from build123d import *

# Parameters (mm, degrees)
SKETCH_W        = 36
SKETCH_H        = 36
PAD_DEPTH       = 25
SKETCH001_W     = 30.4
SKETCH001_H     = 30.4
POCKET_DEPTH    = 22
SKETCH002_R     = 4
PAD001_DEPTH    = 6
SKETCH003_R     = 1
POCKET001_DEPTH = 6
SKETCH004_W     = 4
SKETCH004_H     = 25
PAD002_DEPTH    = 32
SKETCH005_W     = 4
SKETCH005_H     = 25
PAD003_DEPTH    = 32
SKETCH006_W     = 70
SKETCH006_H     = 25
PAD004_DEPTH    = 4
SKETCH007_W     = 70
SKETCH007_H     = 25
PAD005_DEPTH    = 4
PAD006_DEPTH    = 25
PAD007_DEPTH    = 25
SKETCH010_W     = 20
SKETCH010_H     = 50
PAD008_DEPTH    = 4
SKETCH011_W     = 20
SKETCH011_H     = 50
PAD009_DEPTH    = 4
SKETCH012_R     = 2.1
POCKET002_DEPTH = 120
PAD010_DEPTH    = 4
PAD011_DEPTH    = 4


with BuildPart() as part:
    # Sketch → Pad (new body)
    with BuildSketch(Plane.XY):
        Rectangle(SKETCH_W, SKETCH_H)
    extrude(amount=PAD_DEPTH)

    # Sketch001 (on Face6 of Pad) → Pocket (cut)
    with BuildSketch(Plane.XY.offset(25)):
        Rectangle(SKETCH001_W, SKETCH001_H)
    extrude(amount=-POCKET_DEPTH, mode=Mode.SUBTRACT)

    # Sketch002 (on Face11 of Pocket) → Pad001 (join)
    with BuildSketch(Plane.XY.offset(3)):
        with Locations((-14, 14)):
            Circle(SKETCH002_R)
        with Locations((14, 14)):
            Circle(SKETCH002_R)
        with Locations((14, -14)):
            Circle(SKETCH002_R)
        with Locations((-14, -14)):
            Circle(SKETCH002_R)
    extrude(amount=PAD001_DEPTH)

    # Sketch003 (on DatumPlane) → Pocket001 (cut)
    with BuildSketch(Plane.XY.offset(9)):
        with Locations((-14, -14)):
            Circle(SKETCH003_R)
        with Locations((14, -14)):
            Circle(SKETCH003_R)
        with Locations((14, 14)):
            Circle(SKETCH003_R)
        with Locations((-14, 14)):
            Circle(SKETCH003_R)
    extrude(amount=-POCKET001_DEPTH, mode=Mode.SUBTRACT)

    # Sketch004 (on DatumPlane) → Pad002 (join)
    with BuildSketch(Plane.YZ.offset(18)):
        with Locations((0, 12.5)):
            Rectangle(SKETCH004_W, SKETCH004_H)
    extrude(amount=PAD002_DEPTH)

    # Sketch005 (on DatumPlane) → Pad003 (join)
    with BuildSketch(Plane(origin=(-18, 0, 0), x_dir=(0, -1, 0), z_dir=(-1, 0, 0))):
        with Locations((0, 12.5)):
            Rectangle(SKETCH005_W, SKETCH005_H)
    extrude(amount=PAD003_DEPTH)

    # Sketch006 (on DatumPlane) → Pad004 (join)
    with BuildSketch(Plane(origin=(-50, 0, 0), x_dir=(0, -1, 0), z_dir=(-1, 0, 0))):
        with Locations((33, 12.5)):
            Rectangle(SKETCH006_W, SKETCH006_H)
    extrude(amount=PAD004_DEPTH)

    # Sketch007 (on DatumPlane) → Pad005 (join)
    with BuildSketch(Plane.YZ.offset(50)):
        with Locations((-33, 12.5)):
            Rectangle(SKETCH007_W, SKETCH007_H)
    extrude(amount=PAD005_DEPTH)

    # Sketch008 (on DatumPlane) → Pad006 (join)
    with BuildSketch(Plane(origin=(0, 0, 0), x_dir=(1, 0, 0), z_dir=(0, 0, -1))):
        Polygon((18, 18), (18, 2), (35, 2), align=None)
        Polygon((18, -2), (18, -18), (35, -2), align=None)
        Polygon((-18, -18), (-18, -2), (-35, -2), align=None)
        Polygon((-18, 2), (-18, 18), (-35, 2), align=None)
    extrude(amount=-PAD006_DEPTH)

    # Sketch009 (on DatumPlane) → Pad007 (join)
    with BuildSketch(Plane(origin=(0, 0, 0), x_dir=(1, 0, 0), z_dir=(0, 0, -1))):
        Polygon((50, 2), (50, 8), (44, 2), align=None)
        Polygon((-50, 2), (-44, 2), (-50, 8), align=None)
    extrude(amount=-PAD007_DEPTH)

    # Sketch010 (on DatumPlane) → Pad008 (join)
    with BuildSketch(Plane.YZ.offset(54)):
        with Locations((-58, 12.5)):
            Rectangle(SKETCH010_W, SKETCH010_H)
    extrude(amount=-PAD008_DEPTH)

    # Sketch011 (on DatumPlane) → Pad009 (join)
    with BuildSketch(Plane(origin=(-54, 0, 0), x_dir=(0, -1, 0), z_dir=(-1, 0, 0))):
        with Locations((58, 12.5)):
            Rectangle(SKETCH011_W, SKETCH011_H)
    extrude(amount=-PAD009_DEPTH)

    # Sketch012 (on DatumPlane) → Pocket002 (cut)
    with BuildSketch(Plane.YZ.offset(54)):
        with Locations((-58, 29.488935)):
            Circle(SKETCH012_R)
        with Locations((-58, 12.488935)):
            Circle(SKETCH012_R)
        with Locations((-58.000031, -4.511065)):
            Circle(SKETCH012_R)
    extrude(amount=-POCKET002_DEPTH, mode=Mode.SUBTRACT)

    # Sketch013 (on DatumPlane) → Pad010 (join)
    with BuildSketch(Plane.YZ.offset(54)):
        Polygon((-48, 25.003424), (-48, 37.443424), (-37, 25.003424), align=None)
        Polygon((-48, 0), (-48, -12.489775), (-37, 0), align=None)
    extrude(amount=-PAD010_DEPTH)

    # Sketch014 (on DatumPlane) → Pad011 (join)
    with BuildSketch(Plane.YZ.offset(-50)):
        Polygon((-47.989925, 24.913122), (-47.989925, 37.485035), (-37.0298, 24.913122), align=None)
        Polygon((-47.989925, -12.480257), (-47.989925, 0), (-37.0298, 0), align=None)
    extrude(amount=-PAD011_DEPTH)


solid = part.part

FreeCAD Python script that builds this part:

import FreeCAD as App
import Part
import Sketcher
from FreeCAD import Vector
Q = App.Units.Quantity


def add_polygon(sketch, points):
    """Adds a closed chain of lines whose ends are joined by coincident constraints."""
    first, n = sketch.GeometryCount, len(points)
    for a, b in zip(points, points[1:] + points[:1]):
        sketch.addGeometry(Part.LineSegment(App.Vector(*a, 0), App.Vector(*b, 0)), False)
    for i in range(n):
        sketch.addConstraint(Sketcher.Constraint("Coincident", first + i, 2, first + (i + 1) % n, 1))

doc = App.newDocument("Part")
body = doc.addObject("PartDesign::Body", "Body")

# Sketch on XY plane
sketch1 = body.newObject("Sketcher::SketchObject", "Sketch")
sketch1.AttachmentSupport = (doc.getObject("XY_Plane"), [""])
sketch1.MapMode = "FlatFace"
add_polygon(sketch1, [(-18, 18), (-18, -18), (18, -18), (18, 18)])  # lines 0-3
sketch1.addConstraint(Sketcher.Constraint("Vertical", 0))
sketch1.addConstraint(Sketcher.Constraint("Horizontal", 1))
sketch1.addConstraint(Sketcher.Constraint("Vertical", 2))
sketch1.addConstraint(Sketcher.Constraint("Horizontal", 3))
sketch1.addConstraint(Sketcher.Constraint("Symmetric", 0, 2, 2, 2, -1, 1))
sketch1.addConstraint(Sketcher.Constraint("Equal", 3, 0))
sketch1.addConstraint(Sketcher.Constraint("DistanceX", 1, 1, 1, 2, Q("36 mm")))
pad1 = body.newObject("PartDesign::Pad", "Pad")
pad1.Profile = sketch1
pad1.Length = 25

# Sketch on XY plane
sketch2 = body.newObject("Sketcher::SketchObject", "Sketch001")
sketch2.AttachmentSupport = (doc.getObject("XY_Plane"), [""])
sketch2.MapMode = "FlatFace"
sketch2.AttachmentOffset = App.Placement(Vector(0, 0, 25), App.Rotation())
add_polygon(sketch2, [(-15.2, 15.2), (-15.2, -15.2), (15.2, -15.2), (15.2, 15.2)])  # lines 0-3
sketch2.addConstraint(Sketcher.Constraint("Vertical", 0))
sketch2.addConstraint(Sketcher.Constraint("Horizontal", 1))
sketch2.addConstraint(Sketcher.Constraint("Vertical", 2))
sketch2.addConstraint(Sketcher.Constraint("Horizontal", 3))
sketch2.addConstraint(Sketcher.Constraint("Symmetric", 0, 2, 2, 2, -1, 1))
sketch2.addConstraint(Sketcher.Constraint("Equal", 3, 0))
sketch2.addConstraint(Sketcher.Constraint("DistanceX", 1, 1, 1, 2, Q("30.4 mm")))
pocket1 = body.newObject("PartDesign::Pocket", "Pocket")
pocket1.Profile = sketch2
pocket1.Length = 22

# Sketch on XY plane
sketch3 = body.newObject("Sketcher::SketchObject", "Sketch002")
sketch3.AttachmentSupport = (doc.getObject("XY_Plane"), [""])
sketch3.MapMode = "FlatFace"
sketch3.AttachmentOffset = App.Placement(Vector(0, 0, 3), App.Rotation())
sketch3.addGeometry(Part.Circle(Vector(-14, 14, 0), Vector(0, 0, 1), 4), False)
sketch3.addGeometry(Part.Circle(Vector(14, 14, 0), Vector(0, 0, 1), 4), False)
sketch3.addGeometry(Part.Circle(Vector(14, -14, 0), Vector(0, 0, 1), 4), False)
sketch3.addGeometry(Part.Circle(Vector(-14, -14, 0), Vector(0, 0, 1), 4), False)
sketch3.addConstraint(Sketcher.Constraint("Equal", 0, 1))
sketch3.addConstraint(Sketcher.Constraint("Equal", 1, 2))
sketch3.addConstraint(Sketcher.Constraint("Equal", 2, 3))
sketch3.addConstraint(Sketcher.Constraint("Symmetric", 0, 3, 2, 3, -1, 1))
sketch3.addConstraint(Sketcher.Constraint("Symmetric", 1, 3, 3, 3, -1, 1))
sketch3.addConstraint(Sketcher.Constraint("Symmetric", 0, 3, 1, 3, -2))
sketch3.addConstraint(Sketcher.Constraint("Diameter", 0, Q("8 mm")))
sketch3.addConstraint(Sketcher.Constraint("DistanceX", 0, 3, -1, 1, Q("14 mm")))
sketch3.addConstraint(Sketcher.Constraint("DistanceY", -1, 1, 0, 3, Q("14 mm")))
pad2 = body.newObject("PartDesign::Pad", "Pad001")
pad2.Profile = sketch3
pad2.Length = 6

# Sketch on XY plane
sketch4 = body.newObject("Sketcher::SketchObject", "Sketch003")
sketch4.AttachmentSupport = (doc.getObject("XY_Plane"), [""])
sketch4.MapMode = "FlatFace"
sketch4.AttachmentOffset = App.Placement(Vector(0, 0, 9), App.Rotation())
sketch4.addGeometry(Part.Circle(Vector(-14, -14, 0), Vector(0, 0, 1), 1), False)
sketch4.addGeometry(Part.Circle(Vector(14, -14, 0), Vector(0, 0, 1), 1), False)
sketch4.addGeometry(Part.Circle(Vector(14, 14, 0), Vector(0, 0, 1), 1), False)
sketch4.addGeometry(Part.Circle(Vector(-14, 14, 0), Vector(0, 0, 1), 1), False)
sketch4.addConstraint(Sketcher.Constraint("Equal", 0, 1))
sketch4.addConstraint(Sketcher.Constraint("Equal", 1, 2))
sketch4.addConstraint(Sketcher.Constraint("Equal", 2, 3))
sketch4.addConstraint(Sketcher.Constraint("Symmetric", 0, 3, 2, 3, -1, 1))
sketch4.addConstraint(Sketcher.Constraint("Symmetric", 1, 3, 3, 3, -1, 1))
sketch4.addConstraint(Sketcher.Constraint("Symmetric", 0, 3, 1, 3, -2))
sketch4.addConstraint(Sketcher.Constraint("Diameter", 0, Q("2 mm")))
sketch4.addConstraint(Sketcher.Constraint("DistanceX", 0, 3, -1, 1, Q("14 mm")))
sketch4.addConstraint(Sketcher.Constraint("DistanceY", 0, 3, -1, 1, Q("14 mm")))
pocket2 = body.newObject("PartDesign::Pocket", "Pocket001")
pocket2.Profile = sketch4
pocket2.Length = 6

# Sketch on YZ plane
sketch5 = body.newObject("Sketcher::SketchObject", "Sketch004")
sketch5.AttachmentSupport = (doc.getObject("YZ_Plane"), [""])
sketch5.MapMode = "FlatFace"
sketch5.AttachmentOffset = App.Placement(Vector(0, 0, 18), App.Rotation())
add_polygon(sketch5, [(-2, 25), (-2, 0), (2, 0), (2, 25)])  # lines 0-3
sketch5.addConstraint(Sketcher.Constraint("Vertical", 0))
sketch5.addConstraint(Sketcher.Constraint("Horizontal", 1))
sketch5.addConstraint(Sketcher.Constraint("Vertical", 2))
sketch5.addConstraint(Sketcher.Constraint("Horizontal", 3))
sketch5.addConstraint(Sketcher.Constraint("Symmetric", 0, 2, 1, 2, -1, 1))
sketch5.addConstraint(Sketcher.Constraint("DistanceX", 1, 1, 1, 2, Q("4 mm")))
sketch5.addConstraint(Sketcher.Constraint("DistanceY", 0, 2, 0, 1, Q("25 mm")))
pad3 = body.newObject("PartDesign::Pad", "Pad002")
pad3.Profile = sketch5
pad3.Length = 32

# Sketch on YZ plane
sketch6 = body.newObject("Sketcher::SketchObject", "Sketch005")
sketch6.AttachmentSupport = (doc.getObject("YZ_Plane"), [""])
sketch6.MapMode = "FlatFace"
sketch6.AttachmentOffset = App.Placement(Vector(0, 0, -18), App.Rotation())
add_polygon(sketch6, [(2, 25), (2, 0), (-2, 0), (-2, 25)])  # lines 0-3
sketch6.addConstraint(Sketcher.Constraint("Vertical", 0))
sketch6.addConstraint(Sketcher.Constraint("Horizontal", 1))
sketch6.addConstraint(Sketcher.Constraint("Vertical", 2))
sketch6.addConstraint(Sketcher.Constraint("Horizontal", 3))
sketch6.addConstraint(Sketcher.Constraint("Symmetric", 0, 2, 1, 2, -1, 1))
sketch6.addConstraint(Sketcher.Constraint("DistanceX", 1, 2, 1, 1, Q("4 mm")))
sketch6.addConstraint(Sketcher.Constraint("DistanceY", 0, 2, 0, 1, Q("25 mm")))
pad4 = body.newObject("PartDesign::Pad", "Pad003")
pad4.Profile = sketch6
pad4.Length = 32
pad4.Reversed = True

# Sketch on YZ plane
sketch7 = body.newObject("Sketcher::SketchObject", "Sketch006")
sketch7.AttachmentSupport = (doc.getObject("YZ_Plane"), [""])
sketch7.MapMode = "FlatFace"
sketch7.AttachmentOffset = App.Placement(Vector(0, 0, -50), App.Rotation())
add_polygon(sketch7, [(2, 25), (2, 0), (-68, 0), (-68, 25)])  # lines 0-3
sketch7.addConstraint(Sketcher.Constraint("Vertical", 0))
sketch7.addConstraint(Sketcher.Constraint("Horizontal", 1))
sketch7.addConstraint(Sketcher.Constraint("Vertical", 2))
sketch7.addConstraint(Sketcher.Constraint("Horizontal", 3))
sketch7.addConstraint(Sketcher.Constraint("PointOnObject", 0, 2, -1))
sketch7.addConstraint(Sketcher.Constraint("DistanceX", 1, 2, 1, 1, Q("70 mm")))
sketch7.addConstraint(Sketcher.Constraint("DistanceY", 0, 2, 0, 1, Q("25 mm")))
sketch7.addConstraint(Sketcher.Constraint("DistanceX", -1, 1, 0, 2, Q("2 mm")))
pad5 = body.newObject("PartDesign::Pad", "Pad004")
pad5.Profile = sketch7
pad5.Length = 4
pad5.Reversed = True

# Sketch on YZ plane
sketch8 = body.newObject("Sketcher::SketchObject", "Sketch007")
sketch8.AttachmentSupport = (doc.getObject("YZ_Plane"), [""])
sketch8.MapMode = "FlatFace"
sketch8.AttachmentOffset = App.Placement(Vector(0, 0, 50), App.Rotation())
add_polygon(sketch8, [(-68, 25), (-68, 0), (2, 0), (2, 25)])  # lines 0-3
sketch8.addConstraint(Sketcher.Constraint("Vertical", 0))
sketch8.addConstraint(Sketcher.Constraint("Horizontal", 1))
sketch8.addConstraint(Sketcher.Constraint("Vertical", 2))
sketch8.addConstraint(Sketcher.Constraint("Horizontal", 3))
sketch8.addConstraint(Sketcher.Constraint("PointOnObject", 0, 2, -1))
sketch8.addConstraint(Sketcher.Constraint("DistanceX", 1, 1, 1, 2, Q("70 mm")))
sketch8.addConstraint(Sketcher.Constraint("DistanceY", 0, 2, 0, 1, Q("25 mm")))
sketch8.addConstraint(Sketcher.Constraint("DistanceX", 0, 2, -1, 1, Q("68 mm")))
pad6 = body.newObject("PartDesign::Pad", "Pad005")
pad6.Profile = sketch8
pad6.Length = 4

# Sketch on XY plane
sketch9 = body.newObject("Sketcher::SketchObject", "Sketch008")
sketch9.AttachmentSupport = (doc.getObject("XY_Plane"), [""])
sketch9.MapMode = "FlatFace"
add_polygon(sketch9, [(18, -18), (18, -2), (35, -2)])  # lines 0-2
add_polygon(sketch9, [(18, 2), (18, 18), (35, 2)])  # lines 3-5
add_polygon(sketch9, [(-18, 18), (-18, 2), (-35, 2)])  # lines 6-8
add_polygon(sketch9, [(-18, -2), (-18, -18), (-35, -2)])  # lines 9-11
sketch9.addConstraint(Sketcher.Constraint("Vertical", 0))
sketch9.addConstraint(Sketcher.Constraint("Horizontal", 1))
sketch9.addConstraint(Sketcher.Constraint("Vertical", 3))
sketch9.addConstraint(Sketcher.Constraint("Horizontal", 5))
sketch9.addConstraint(Sketcher.Constraint("Vertical", 6))
sketch9.addConstraint(Sketcher.Constraint("Horizontal", 7))
sketch9.addConstraint(Sketcher.Constraint("Vertical", 9))
sketch9.addConstraint(Sketcher.Constraint("Horizontal", 11))
sketch9.addConstraint(Sketcher.Constraint("Symmetric", 0, 2, 6, 2, -1, 1))
sketch9.addConstraint(Sketcher.Constraint("Symmetric", 3, 2, 9, 2, -1, 1))
sketch9.addConstraint(Sketcher.Constraint("Symmetric", 4, 2, 10, 2, -1, 1))
sketch9.addConstraint(Sketcher.Constraint("Symmetric", 5, 2, 6, 2, -2))
sketch9.addConstraint(Sketcher.Constraint("Parallel", 2, 8))
sketch9.addConstraint(Sketcher.Constraint("Horizontal", 3, 2, 8, 2))
sketch9.addConstraint(Sketcher.Constraint("Horizontal", 2, 2, 9, 2))
sketch9.addConstraint(Sketcher.Constraint("Vertical", 1, 2, 4, 2))
sketch9.addConstraint(Sketcher.Constraint("DistanceX", 1, 1, 1, 2, Q("17 mm")))
sketch9.addConstraint(Sketcher.Constraint("DistanceY", 0, 1, 0, 2, Q("16 mm")))
sketch9.addConstraint(Sketcher.Constraint("DistanceX", -1, 1, 0, 2, Q("18 mm")))
sketch9.addConstraint(Sketcher.Constraint("DistanceY", 0, 2, -1, 1, Q("2 mm")))
pad7 = body.newObject("PartDesign::Pad", "Pad006")
pad7.Profile = sketch9
pad7.Length = 25

# Sketch on XY plane
sketch10 = body.newObject("Sketcher::SketchObject", "Sketch009")
sketch10.AttachmentSupport = (doc.getObject("XY_Plane"), [""])
sketch10.MapMode = "FlatFace"
add_polygon(sketch10, [(50, -2), (50, -8), (44, -2)])  # lines 0-2
add_polygon(sketch10, [(-50, -2), (-44, -2), (-50, -8)])  # lines 3-5
sketch10.addConstraint(Sketcher.Constraint("Vertical", 0))
sketch10.addConstraint(Sketcher.Constraint("Horizontal", 2))
sketch10.addConstraint(Sketcher.Constraint("Horizontal", 3))
sketch10.addConstraint(Sketcher.Constraint("Vertical", 5))
sketch10.addConstraint(Sketcher.Constraint("Symmetric", 1, 2, 3, 2, -2))
sketch10.addConstraint(Sketcher.Constraint("Symmetric", 0, 2, 4, 2, -2))
sketch10.addConstraint(Sketcher.Constraint("Perpendicular", 1, 4))
sketch10.addConstraint(Sketcher.Constraint("DistanceX", 2, 1, 2, 2, Q("6 mm")))
sketch10.addConstraint(Sketcher.Constraint("DistanceX", -1, 1, 0, 2, Q("50 mm")))
sketch10.addConstraint(Sketcher.Constraint("DistanceY", 0, 2, -1, 1, Q("8 mm")))
pad8 = body.newObject("PartDesign::Pad", "Pad007")
pad8.Profile = sketch10
pad8.Length = 25

# Sketch on YZ plane
sketch11 = body.newObject("Sketcher::SketchObject", "Sketch010")
sketch11.AttachmentSupport = (doc.getObject("YZ_Plane"), [""])
sketch11.MapMode = "FlatFace"
sketch11.AttachmentOffset = App.Placement(Vector(0, 0, 54), App.Rotation())
add_polygon(sketch11, [(-68, 37.5), (-68, -12.5), (-48, -12.5), (-48, 37.5)])  # lines 0-3
sketch11.addConstraint(Sketcher.Constraint("Vertical", 0))
sketch11.addConstraint(Sketcher.Constraint("Horizontal", 1))
sketch11.addConstraint(Sketcher.Constraint("Vertical", 2))
sketch11.addConstraint(Sketcher.Constraint("Horizontal", 3))
sketch11.addConstraint(Sketcher.Constraint("DistanceX", 1, 1, 1, 2, Q("20 mm")))
sketch11.addConstraint(Sketcher.Constraint("DistanceY", 0, 2, 0, 1, Q("50 mm")))
sketch11.addConstraint(Sketcher.Constraint("DistanceX", 0, 2, -1, 1, Q("68 mm")))
sketch11.addConstraint(Sketcher.Constraint("DistanceY", 0, 2, -1, 1, Q("12.5 mm")))
pad9 = body.newObject("PartDesign::Pad", "Pad008")
pad9.Profile = sketch11
pad9.Length = 4
pad9.Reversed = True

# Sketch on YZ plane
sketch12 = body.newObject("Sketcher::SketchObject", "Sketch011")
sketch12.AttachmentSupport = (doc.getObject("YZ_Plane"), [""])
sketch12.MapMode = "FlatFace"
sketch12.AttachmentOffset = App.Placement(Vector(0, 0, -54), App.Rotation())
add_polygon(sketch12, [(-48, 37.5), (-48, -12.5), (-68, -12.5), (-68, 37.5)])  # lines 0-3
sketch12.addConstraint(Sketcher.Constraint("Vertical", 0))
sketch12.addConstraint(Sketcher.Constraint("Horizontal", 1))
sketch12.addConstraint(Sketcher.Constraint("Vertical", 2))
sketch12.addConstraint(Sketcher.Constraint("Horizontal", 3))
sketch12.addConstraint(Sketcher.Constraint("DistanceX", 1, 2, 1, 1, Q("20 mm")))
sketch12.addConstraint(Sketcher.Constraint("DistanceY", 0, 2, 0, 1, Q("50 mm")))
sketch12.addConstraint(Sketcher.Constraint("DistanceX", 0, 2, -1, 1, Q("48 mm")))
sketch12.addConstraint(Sketcher.Constraint("DistanceY", 0, 2, -1, 1, Q("12.5 mm")))
pad10 = body.newObject("PartDesign::Pad", "Pad009")
pad10.Profile = sketch12
pad10.Length = 4

# Sketch on YZ plane
sketch13 = body.newObject("Sketcher::SketchObject", "Sketch012")
sketch13.AttachmentSupport = (doc.getObject("YZ_Plane"), [""])
sketch13.MapMode = "FlatFace"
sketch13.AttachmentOffset = App.Placement(Vector(0, 0, 54), App.Rotation())
sketch13.addGeometry(Part.Circle(Vector(-58, 29.488935, 0), Vector(0, 0, 1), 2.1), False)
sketch13.addGeometry(Part.Circle(Vector(-58, 12.488935, 0), Vector(0, 0, 1), 2.1), False)
sketch13.addGeometry(Part.Circle(Vector(-58.000031, -4.511065, 0), Vector(0, 0, 1), 2.1), False)
sketch13.addConstraint(Sketcher.Constraint("Equal", 0, 1))
sketch13.addConstraint(Sketcher.Constraint("Equal", 1, 2))
sketch13.addConstraint(Sketcher.Constraint("Vertical", 0, 3, 1, 3))
sketch13.addConstraint(Sketcher.Constraint("Diameter", 0, Q("4.2 mm")))
sketch13.addConstraint(Sketcher.Constraint("DistanceX", 0, 3, -1, 1, Q("58 mm")))
sketch13.addConstraint(Sketcher.Constraint("DistanceY", 1, 3, 0, 3, Q("17 mm")))
sketch13.addConstraint(Sketcher.Constraint("DistanceY", 2, 3, 1, 3, Q("17 mm")))
sketch13.addConstraint(Sketcher.Constraint("DistanceX", 2, 3, -1, 1, Q("58.000031 mm")))
sketch13.addConstraint(Sketcher.Constraint("DistanceY", -1, 1, 0, 3, Q("29.488935 mm")))
pocket3 = body.newObject("PartDesign::Pocket", "Pocket002")
pocket3.Profile = sketch13
pocket3.Length = 120

# Sketch on YZ plane
sketch14 = body.newObject("Sketcher::SketchObject", "Sketch013")
sketch14.AttachmentSupport = (doc.getObject("YZ_Plane"), [""])
sketch14.MapMode = "FlatFace"
sketch14.AttachmentOffset = App.Placement(Vector(0, 0, 54), App.Rotation())
add_polygon(sketch14, [(-48, 37.443424), (-48, 25.003424), (-37, 25.003424)])  # lines 0-2
add_polygon(sketch14, [(-48, 0), (-48, -12.489775), (-37, 0)])  # lines 3-5
sketch14.addConstraint(Sketcher.Constraint("Vertical", 0))
sketch14.addConstraint(Sketcher.Constraint("Horizontal", 1))
sketch14.addConstraint(Sketcher.Constraint("Vertical", 3))
sketch14.addConstraint(Sketcher.Constraint("Horizontal", 5))
sketch14.addConstraint(Sketcher.Constraint("PointOnObject", 4, 2, -1))
sketch14.addConstraint(Sketcher.Constraint("Vertical", 2, 2, 3, 2))
sketch14.addConstraint(Sketcher.Constraint("Vertical", 1, 2, 4, 2))
sketch14.addConstraint(Sketcher.Constraint("DistanceX", 1, 1, 1, 2, Q("11 mm")))
sketch14.addConstraint(Sketcher.Constraint("DistanceX", 0, 2, -1, 1, Q("48 mm")))
sketch14.addConstraint(Sketcher.Constraint("DistanceY", 0, 2, 0, 1, Q("12.44 mm")))
sketch14.addConstraint(Sketcher.Constraint("DistanceY", 3, 2, 0, 2, Q("37.493199 mm")))
sketch14.addConstraint(Sketcher.Constraint("Distance", 4, Q("16.643151 mm")))
pad11 = body.newObject("PartDesign::Pad", "Pad010")
pad11.Profile = sketch14
pad11.Length = 4
pad11.Reversed = True

# Sketch on YZ plane
sketch15 = body.newObject("Sketcher::SketchObject", "Sketch014")
sketch15.AttachmentSupport = (doc.getObject("YZ_Plane"), [""])
sketch15.MapMode = "FlatFace"
sketch15.AttachmentOffset = App.Placement(Vector(0, 0, -50), App.Rotation())
add_polygon(sketch15, [(-47.989925, 37.485035), (-47.989925, 24.913122), (-37.0298, 24.913122)])  # lines 0-2
add_polygon(sketch15, [(-47.989925, 0), (-47.989925, -12.480257), (-37.0298, 0)])  # lines 3-5
sketch15.addConstraint(Sketcher.Constraint("Vertical", 0))
sketch15.addConstraint(Sketcher.Constraint("Horizontal", 1))
sketch15.addConstraint(Sketcher.Constraint("Vertical", 3))
sketch15.addConstraint(Sketcher.Constraint("Horizontal", 5))
sketch15.addConstraint(Sketcher.Constraint("PointOnObject", 4, 2, -1))
sketch15.addConstraint(Sketcher.Constraint("Vertical", 2, 2, 3, 2))
sketch15.addConstraint(Sketcher.Constraint("Vertical", 1, 2, 4, 2))
sketch15.addConstraint(Sketcher.Constraint("DistanceX", 1, 2, -1, 1, Q("37.0298 mm")))
sketch15.addConstraint(Sketcher.Constraint("Distance", 2, Q("16.678649 mm")))
sketch15.addConstraint(Sketcher.Constraint("Distance", 4, Q("16.609671 mm")))
sketch15.addConstraint(Sketcher.Constraint("DistanceX", 1, 1, 1, 2, Q("10.960125 mm")))
sketch15.addConstraint(Sketcher.Constraint("DistanceY", 3, 2, 0, 2, Q("37.393379 mm")))
pad12 = body.newObject("PartDesign::Pad", "Pad011")
pad12.Profile = sketch15
pad12.Length = 4
pad12.Reversed = True

doc.recompute()
